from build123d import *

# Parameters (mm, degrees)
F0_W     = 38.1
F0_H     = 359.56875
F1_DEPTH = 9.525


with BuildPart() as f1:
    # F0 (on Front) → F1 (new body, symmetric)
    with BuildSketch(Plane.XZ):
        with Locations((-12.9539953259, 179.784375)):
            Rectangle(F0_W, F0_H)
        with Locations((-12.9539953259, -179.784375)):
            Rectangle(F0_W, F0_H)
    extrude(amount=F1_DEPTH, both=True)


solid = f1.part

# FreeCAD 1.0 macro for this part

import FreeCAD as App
import Part
import Sketcher
Q = App.Units.Quantity


def add_polygon(sketch, points):
    """Adds a closed chain of lines whose ends are joined by coincident constraints."""
    first, n = sketch.GeometryCount, len(points)
    for a, b in zip(points, points[1:] + points[:1]):
        sketch.addGeometry(Part.LineSegment(App.Vector(*a, 0), App.Vector(*b, 0)), False)
    for i in range(n):
        sketch.addConstraint(Sketcher.Constraint("Coincident", first + i, 2, first + (i + 1) % n, 1))

doc = App.newDocument("Part")
params = doc.addObject("Spreadsheet::Sheet", "Params")
for row, (alias, value) in enumerate([
    ("sketch1_width", "1.5 in"),
    ("sketch1_height", "28.3125 in"),
    ("pad1_length", "0.75 in"),
], start=1):
    params.set(f"A{row}", alias)
    params.set(f"B{row}", "=" + value)
    params.setAlias(f"B{row}", alias)

body = doc.addObject("PartDesign::Body", "Body")

sketch1 = body.newObject("Sketcher::SketchObject", "Sketch")
sketch1.AttachmentSupport = (doc.getObject("XZ_Plane"), [""])
sketch1.MapMode = "FlatFace"
add_polygon(sketch1, [(-32, 360), (-32, -360), (6, -360), (6, 360)])
sketch1.addConstraint(Sketcher.Constraint("Vertical", 0))
sketch1.addConstraint(Sketcher.Constraint("Horizontal", 1))
sketch1.addConstraint(Sketcher.Constraint("Vertical", 2))
sketch1.addConstraint(Sketcher.Constraint("Horizontal", 3))
sketch1.addConstraint(Sketcher.Constraint("DistanceX", 1, 1, 1, 2, Q("1.5 in")))
sketch1.addConstraint(Sketcher.Constraint("DistanceY", 0, 2, 0, 1, Q("28.3125 in")))
sketch1.addConstraint(Sketcher.Constraint("DistanceX", 0, 2, -1, 1, Q("1.2599998 in")))
sketch1.addConstraint(Sketcher.Constraint("DistanceY", 0, 2, -1, 1, Q("14.15625 in")))
sketch1.setExpression("Constraints[8]", "Params.sketch1_width")
sketch1.setExpression("Constraints[9]", "Params.sketch1_height")
pad1 = body.newObject("PartDesign::Pad", "Pad")
pad1.Profile = sketch1
pad1.setExpression("Length", "Params.pad1_length")
pad1.Midplane = True

doc.recompute()
